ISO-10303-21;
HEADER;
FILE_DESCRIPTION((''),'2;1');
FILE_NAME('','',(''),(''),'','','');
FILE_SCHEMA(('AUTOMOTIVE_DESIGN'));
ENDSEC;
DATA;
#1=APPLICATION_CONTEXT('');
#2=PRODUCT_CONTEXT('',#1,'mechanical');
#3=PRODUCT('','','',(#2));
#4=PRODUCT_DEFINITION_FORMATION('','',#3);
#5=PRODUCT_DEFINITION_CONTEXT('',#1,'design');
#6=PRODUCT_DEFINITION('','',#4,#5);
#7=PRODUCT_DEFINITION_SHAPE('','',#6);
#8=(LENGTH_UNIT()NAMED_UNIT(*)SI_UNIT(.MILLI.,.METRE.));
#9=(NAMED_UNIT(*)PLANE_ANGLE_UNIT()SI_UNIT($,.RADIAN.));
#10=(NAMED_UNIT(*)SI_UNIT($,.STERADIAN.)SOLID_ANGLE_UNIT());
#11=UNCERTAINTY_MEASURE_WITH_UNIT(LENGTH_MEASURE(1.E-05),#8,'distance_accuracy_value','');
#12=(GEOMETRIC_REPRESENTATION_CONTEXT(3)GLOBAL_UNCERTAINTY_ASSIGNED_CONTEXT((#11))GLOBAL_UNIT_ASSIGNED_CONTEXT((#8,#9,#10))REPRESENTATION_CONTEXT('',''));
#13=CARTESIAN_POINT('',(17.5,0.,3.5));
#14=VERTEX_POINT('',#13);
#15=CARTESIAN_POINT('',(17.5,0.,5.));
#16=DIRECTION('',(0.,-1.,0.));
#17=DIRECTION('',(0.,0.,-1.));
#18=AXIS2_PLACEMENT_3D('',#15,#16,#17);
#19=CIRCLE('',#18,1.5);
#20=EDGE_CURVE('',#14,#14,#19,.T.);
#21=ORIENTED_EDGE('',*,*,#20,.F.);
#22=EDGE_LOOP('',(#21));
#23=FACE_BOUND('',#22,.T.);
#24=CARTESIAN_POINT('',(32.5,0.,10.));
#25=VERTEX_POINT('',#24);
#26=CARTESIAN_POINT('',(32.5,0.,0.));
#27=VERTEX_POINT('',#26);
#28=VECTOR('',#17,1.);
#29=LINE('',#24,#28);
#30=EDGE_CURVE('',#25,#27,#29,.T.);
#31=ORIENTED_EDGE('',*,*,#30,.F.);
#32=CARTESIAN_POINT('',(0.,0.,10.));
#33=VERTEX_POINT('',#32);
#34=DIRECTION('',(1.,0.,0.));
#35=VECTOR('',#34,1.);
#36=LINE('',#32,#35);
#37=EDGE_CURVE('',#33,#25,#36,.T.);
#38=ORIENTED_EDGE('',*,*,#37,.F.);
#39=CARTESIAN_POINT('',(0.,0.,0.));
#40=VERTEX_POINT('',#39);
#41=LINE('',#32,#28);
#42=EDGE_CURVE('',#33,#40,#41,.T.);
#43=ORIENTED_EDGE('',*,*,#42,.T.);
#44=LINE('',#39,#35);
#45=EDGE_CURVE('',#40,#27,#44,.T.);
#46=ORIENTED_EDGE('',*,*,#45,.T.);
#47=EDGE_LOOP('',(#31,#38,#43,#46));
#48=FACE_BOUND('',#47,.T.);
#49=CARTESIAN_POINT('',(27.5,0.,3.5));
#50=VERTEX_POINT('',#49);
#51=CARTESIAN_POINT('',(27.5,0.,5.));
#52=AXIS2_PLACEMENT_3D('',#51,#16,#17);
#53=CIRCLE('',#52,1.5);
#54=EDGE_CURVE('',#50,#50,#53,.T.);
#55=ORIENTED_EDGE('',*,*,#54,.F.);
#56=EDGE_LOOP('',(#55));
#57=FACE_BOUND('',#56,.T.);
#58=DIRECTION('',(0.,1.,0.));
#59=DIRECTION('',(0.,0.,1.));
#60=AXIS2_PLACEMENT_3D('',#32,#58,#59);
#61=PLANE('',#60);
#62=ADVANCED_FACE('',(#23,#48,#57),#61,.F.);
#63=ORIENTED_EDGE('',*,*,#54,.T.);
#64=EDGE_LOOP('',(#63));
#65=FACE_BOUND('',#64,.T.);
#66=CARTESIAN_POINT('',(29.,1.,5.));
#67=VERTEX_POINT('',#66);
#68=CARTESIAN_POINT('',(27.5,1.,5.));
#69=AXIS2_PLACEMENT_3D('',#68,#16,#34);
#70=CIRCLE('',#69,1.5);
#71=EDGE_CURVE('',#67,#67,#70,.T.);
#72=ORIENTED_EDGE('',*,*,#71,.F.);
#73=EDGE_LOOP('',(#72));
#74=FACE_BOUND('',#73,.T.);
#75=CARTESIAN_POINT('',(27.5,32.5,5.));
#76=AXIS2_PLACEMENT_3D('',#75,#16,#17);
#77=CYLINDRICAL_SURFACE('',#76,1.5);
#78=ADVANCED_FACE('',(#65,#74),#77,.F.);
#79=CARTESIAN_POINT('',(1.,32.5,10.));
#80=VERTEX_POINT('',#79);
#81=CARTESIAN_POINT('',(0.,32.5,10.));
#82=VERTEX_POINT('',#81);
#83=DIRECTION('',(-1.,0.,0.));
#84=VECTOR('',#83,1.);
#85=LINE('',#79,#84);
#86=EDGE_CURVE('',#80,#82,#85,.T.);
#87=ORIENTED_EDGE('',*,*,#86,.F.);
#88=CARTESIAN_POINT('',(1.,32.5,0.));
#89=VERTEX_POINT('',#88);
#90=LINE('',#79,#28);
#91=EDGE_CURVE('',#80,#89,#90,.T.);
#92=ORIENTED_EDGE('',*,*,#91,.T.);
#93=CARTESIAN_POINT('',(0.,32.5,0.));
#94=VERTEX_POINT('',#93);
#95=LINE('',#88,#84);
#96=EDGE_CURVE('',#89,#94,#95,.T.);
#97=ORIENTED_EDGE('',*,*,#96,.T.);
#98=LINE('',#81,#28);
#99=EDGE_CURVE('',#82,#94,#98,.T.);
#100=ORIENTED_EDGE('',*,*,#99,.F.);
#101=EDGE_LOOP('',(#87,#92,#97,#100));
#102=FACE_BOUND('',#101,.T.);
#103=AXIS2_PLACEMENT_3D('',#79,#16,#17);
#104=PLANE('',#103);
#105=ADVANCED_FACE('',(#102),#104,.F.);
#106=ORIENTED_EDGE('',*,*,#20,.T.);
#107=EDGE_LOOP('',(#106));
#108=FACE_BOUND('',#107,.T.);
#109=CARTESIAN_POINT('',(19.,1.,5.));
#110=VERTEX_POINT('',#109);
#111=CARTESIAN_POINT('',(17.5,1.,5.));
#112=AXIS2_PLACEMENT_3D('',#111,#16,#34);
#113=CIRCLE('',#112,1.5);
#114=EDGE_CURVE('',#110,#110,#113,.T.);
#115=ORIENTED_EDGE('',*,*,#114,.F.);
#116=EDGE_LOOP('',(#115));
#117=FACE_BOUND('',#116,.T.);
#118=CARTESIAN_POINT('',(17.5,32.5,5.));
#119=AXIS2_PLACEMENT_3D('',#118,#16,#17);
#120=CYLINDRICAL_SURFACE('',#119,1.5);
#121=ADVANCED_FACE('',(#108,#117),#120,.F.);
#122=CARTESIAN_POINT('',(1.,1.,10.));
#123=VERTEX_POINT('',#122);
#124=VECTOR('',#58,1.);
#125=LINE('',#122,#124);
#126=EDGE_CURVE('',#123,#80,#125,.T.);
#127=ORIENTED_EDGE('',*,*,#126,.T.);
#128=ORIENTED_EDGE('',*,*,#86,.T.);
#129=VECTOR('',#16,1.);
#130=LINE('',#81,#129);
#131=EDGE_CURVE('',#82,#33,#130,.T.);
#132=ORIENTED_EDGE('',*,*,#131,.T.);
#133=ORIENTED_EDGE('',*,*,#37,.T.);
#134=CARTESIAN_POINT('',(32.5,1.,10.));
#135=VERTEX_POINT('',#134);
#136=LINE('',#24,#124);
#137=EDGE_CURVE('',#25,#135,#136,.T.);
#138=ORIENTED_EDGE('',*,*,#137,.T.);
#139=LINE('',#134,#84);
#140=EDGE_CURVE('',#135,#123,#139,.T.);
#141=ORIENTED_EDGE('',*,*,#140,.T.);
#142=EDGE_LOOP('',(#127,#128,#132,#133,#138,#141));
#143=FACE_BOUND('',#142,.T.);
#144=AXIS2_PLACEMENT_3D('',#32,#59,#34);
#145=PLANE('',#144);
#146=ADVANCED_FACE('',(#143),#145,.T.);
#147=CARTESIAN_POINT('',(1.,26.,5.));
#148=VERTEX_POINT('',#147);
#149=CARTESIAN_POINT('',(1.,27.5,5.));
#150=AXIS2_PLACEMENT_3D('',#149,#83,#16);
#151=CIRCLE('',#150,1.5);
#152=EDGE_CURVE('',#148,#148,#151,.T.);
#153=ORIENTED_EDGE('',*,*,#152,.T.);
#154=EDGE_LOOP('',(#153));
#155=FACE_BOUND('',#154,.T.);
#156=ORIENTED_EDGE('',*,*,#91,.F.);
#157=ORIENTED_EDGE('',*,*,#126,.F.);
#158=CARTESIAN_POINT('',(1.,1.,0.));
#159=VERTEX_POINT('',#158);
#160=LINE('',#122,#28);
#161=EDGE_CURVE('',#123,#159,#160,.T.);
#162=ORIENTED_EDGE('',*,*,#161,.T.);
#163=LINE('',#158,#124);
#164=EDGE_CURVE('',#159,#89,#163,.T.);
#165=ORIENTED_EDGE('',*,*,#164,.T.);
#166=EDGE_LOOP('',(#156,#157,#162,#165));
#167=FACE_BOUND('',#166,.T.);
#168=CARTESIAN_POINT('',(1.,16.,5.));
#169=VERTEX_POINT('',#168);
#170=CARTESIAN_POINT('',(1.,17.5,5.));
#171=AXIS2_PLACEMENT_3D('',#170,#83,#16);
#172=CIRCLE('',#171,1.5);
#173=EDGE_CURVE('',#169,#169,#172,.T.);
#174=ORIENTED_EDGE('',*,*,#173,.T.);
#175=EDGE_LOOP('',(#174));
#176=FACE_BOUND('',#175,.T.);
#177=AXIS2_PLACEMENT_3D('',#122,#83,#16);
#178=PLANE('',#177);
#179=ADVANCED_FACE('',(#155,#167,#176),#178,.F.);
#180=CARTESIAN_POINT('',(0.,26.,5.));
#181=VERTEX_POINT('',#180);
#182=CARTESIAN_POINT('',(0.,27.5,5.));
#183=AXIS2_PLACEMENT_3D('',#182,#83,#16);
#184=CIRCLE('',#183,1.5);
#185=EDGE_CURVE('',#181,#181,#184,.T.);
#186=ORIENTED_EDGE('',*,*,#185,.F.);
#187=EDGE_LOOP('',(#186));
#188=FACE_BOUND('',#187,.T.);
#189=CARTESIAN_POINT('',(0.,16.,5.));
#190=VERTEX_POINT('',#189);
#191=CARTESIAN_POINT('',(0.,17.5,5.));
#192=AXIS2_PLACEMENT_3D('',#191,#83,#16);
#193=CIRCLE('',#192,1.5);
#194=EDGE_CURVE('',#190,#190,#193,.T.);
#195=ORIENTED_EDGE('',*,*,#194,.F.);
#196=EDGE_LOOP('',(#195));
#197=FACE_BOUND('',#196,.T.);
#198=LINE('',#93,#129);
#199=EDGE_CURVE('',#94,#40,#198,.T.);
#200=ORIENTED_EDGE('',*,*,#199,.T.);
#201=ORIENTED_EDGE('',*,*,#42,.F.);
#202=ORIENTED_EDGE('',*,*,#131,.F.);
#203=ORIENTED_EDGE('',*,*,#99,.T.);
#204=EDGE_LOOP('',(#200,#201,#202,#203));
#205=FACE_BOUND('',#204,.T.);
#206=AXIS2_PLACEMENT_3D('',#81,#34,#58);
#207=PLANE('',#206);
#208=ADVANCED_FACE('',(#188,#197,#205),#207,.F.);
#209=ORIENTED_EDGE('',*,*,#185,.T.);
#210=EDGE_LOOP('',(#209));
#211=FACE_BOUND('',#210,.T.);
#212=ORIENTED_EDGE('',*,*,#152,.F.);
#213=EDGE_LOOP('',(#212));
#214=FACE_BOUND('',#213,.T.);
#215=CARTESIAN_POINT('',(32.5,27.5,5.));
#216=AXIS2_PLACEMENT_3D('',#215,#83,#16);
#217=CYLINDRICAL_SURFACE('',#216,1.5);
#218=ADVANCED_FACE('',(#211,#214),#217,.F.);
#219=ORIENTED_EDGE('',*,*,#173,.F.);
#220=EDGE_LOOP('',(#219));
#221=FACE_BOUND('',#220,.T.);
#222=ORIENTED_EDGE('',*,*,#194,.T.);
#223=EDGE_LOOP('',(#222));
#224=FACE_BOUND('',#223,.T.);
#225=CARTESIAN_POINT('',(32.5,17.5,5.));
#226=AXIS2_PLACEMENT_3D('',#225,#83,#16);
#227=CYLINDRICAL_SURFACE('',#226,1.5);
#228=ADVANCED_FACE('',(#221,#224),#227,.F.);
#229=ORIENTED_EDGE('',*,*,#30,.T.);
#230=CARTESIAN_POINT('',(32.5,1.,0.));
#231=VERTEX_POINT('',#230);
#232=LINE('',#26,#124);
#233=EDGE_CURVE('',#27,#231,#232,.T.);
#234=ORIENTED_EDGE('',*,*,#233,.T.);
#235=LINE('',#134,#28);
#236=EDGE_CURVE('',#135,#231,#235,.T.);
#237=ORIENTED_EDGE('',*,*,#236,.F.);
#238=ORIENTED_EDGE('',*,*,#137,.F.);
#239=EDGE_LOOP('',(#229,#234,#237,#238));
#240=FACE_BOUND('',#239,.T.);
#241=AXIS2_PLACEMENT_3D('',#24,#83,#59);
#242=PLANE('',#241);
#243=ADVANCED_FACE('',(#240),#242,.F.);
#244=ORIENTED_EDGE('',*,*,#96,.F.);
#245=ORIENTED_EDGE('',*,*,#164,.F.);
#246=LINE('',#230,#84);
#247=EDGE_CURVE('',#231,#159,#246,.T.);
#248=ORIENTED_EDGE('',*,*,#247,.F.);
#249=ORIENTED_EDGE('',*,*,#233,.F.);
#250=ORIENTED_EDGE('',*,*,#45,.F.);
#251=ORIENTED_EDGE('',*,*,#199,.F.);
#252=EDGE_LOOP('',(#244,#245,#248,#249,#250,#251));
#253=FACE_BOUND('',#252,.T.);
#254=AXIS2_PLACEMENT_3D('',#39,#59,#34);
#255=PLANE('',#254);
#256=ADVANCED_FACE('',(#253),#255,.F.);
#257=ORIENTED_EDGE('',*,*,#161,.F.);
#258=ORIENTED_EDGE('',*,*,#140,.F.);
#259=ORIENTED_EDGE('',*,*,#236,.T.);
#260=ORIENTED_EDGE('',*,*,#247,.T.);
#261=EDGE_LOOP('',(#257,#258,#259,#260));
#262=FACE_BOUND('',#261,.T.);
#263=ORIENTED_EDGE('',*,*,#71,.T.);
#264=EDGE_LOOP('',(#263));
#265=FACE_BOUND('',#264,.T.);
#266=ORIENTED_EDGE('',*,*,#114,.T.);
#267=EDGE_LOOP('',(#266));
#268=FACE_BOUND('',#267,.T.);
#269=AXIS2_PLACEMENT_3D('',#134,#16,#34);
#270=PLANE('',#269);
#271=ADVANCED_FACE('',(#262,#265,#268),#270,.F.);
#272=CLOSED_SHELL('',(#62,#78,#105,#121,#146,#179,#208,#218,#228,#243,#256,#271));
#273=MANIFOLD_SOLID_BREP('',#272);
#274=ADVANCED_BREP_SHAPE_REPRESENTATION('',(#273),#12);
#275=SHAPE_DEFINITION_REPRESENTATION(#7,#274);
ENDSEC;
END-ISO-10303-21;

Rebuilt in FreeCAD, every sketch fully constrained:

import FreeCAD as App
import Part
import Sketcher

V = App.Vector


def add_polygon(sketch, points):
    """Adds a closed chain of lines whose ends are joined by coincident constraints."""
    first, n = sketch.GeometryCount, len(points)
    for a, b in zip(points, points[1:] + points[:1]):
        sketch.addGeometry(Part.LineSegment(App.Vector(*a, 0), App.Vector(*b, 0)), False)
    for i in range(n):
        sketch.addConstraint(Sketcher.Constraint("Coincident", first + i, 2, first + (i + 1) % n, 1))

doc = App.newDocument("Part")
body = doc.addObject("PartDesign::Body", "Body")

# Sketch on XY plane
sketch1 = doc.addObject("Sketcher::SketchObject", "Sketch")
body.addObject(sketch1)
sketch1.AttachmentSupport = (doc.XY_Plane, [""])
sketch1.MapMode = "FlatFace"
add_polygon(sketch1, [(0, 0), (32.5, 0), (32.5, 1), (1, 1), (1, 32.5), (0, 32.5)])  # lines 0-5
sketch1.addConstraint(Sketcher.Constraint("Horizontal", 0))
sketch1.addConstraint(Sketcher.Constraint("Vertical", 1))
sketch1.addConstraint(Sketcher.Constraint("Horizontal", 2))
sketch1.addConstraint(Sketcher.Constraint("Vertical", 3))
sketch1.addConstraint(Sketcher.Constraint("Horizontal", 4))
sketch1.addConstraint(Sketcher.Constraint("Vertical", 5))
sketch1.addConstraint(Sketcher.Constraint("Coincident", 5, 2, -1, 1))
sketch1.addConstraint(Sketcher.Constraint("Equal", 4, 1))
sketch1.addConstraint(Sketcher.Constraint("Equal", 2, 3))
sketch1.addConstraint(Sketcher.Constraint("DistanceX", 4, 2, 4, 1, 1.0))
sketch1.addConstraint(Sketcher.Constraint("DistanceX", 0, 1, 0, 2, 32.5))
pad1 = doc.addObject("PartDesign::Pad", "Pad")
body.addObject(pad1)
pad1.Profile = sketch1
pad1.Length = 10

# Sketch on YZ plane
sketch2 = doc.addObject("Sketcher::SketchObject", "Sketch001")
body.addObject(sketch2)
sketch2.AttachmentSupport = (doc.YZ_Plane, [""])
sketch2.MapMode = "FlatFace"
sketch2.addGeometry(Part.Circle(V(27.5, 5, 0), V(0, 0, 1), 1.5), False)
sketch2.addConstraint(Sketcher.Constraint("Diameter", 0, 3.0))
sketch2.addConstraint(Sketcher.Constraint("DistanceY", -1, 1, 0, 3, 5.0))
sketch2.addConstraint(Sketcher.Constraint("DistanceX", -1, 1, 0, 3, 27.5))
pocket1 = doc.addObject("PartDesign::Pocket", "Pocket")
body.addObject(pocket1)
pocket1.Profile = sketch2
pocket1.Type = "ThroughAll"
pocket1.Reversed = True
doc.recompute()

linearpattern = doc.addObject("PartDesign::LinearPattern", "LinearPattern")
body.addObject(linearpattern)
linearpattern.Originals = [pocket1]
linearpattern.Direction = (doc.Y_Axis, [""])
linearpattern.Mode = "offset"
linearpattern.Offset = 10
linearpattern.Occurrences = 2
linearpattern.Reversed = True
body.Tip = linearpattern

# Sketch on XZ plane
sketch3 = doc.addObject("Sketcher::SketchObject", "Sketch002")
body.addObject(sketch3)
sketch3.AttachmentSupport = (doc.XZ_Plane, [""])
sketch3.MapMode = "FlatFace"
sketch3.addGeometry(Part.Circle(V(27.5, 5, 0), V(0, 0, 1), 1.5), False)
sketch3.addConstraint(Sketcher.Constraint("Diameter", 0, 3.0))
sketch3.addConstraint(Sketcher.Constraint("DistanceY", -1, 1, 0, 3, 5.0))
sketch3.addConstraint(Sketcher.Constraint("DistanceX", -1, 1, 0, 3, 27.5))
pocket2 = doc.addObject("PartDesign::Pocket", "Pocket001")
body.addObject(pocket2)
pocket2.Profile = sketch3
pocket2.Type = "ThroughAll"
doc.recompute()

linearpattern2 = doc.addObject("PartDesign::LinearPattern", "LinearPattern001")
body.addObject(linearpattern2)
linearpattern2.Originals = [pocket2]
linearpattern2.Direction = (doc.X_Axis, [""])
linearpattern2.Mode = "offset"
linearpattern2.Offset = 10
linearpattern2.Occurrences = 2
linearpattern2.Reversed = True
body.Tip = linearpattern2

doc.recompute()
